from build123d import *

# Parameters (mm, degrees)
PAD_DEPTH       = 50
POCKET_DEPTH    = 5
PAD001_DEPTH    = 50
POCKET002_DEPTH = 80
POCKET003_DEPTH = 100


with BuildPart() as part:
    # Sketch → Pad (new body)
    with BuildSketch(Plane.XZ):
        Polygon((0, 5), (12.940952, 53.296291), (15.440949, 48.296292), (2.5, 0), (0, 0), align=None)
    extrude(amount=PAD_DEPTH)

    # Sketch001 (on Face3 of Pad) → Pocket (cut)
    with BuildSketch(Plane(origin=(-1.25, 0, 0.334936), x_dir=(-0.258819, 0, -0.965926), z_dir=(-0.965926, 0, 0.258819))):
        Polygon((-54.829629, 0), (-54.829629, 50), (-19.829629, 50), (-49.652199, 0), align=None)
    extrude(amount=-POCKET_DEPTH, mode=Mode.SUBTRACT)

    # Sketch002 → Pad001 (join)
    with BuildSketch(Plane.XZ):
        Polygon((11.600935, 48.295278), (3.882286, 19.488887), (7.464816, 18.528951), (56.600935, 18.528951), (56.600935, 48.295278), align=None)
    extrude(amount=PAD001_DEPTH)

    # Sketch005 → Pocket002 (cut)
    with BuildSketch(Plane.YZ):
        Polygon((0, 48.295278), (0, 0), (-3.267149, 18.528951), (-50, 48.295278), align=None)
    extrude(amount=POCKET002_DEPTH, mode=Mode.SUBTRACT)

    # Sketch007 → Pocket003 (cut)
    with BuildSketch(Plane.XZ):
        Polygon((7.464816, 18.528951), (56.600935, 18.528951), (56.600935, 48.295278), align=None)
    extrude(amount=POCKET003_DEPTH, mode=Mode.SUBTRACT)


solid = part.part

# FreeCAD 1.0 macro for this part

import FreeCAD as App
import Part
import Sketcher
from FreeCAD import Vector
Q = App.Units.Quantity


def add_polygon(sketch, points):
    """Adds a closed chain of lines whose ends are joined by coincident constraints."""
    first, n = sketch.GeometryCount, len(points)
    for a, b in zip(points, points[1:] + points[:1]):
        sketch.addGeometry(Part.LineSegment(App.Vector(*a, 0), App.Vector(*b, 0)), False)
    for i in range(n):
        sketch.addConstraint(Sketcher.Constraint("Coincident", first + i, 2, first + (i + 1) % n, 1))

doc = App.newDocument("Part")
body = doc.addObject("PartDesign::Body", "Body")

sketch1 = body.newObject("Sketcher::SketchObject", "Sketch")
sketch1.AttachmentSupport = (doc.getObject("XZ_Plane"), [""])
sketch1.MapMode = "FlatFace"
add_polygon(sketch1, [(12.9, 53.3), (0, 5), (0, 0), (2.5, 0), (15.4, 48.3)])
sketch1.addConstraint(Sketcher.Constraint("Vertical", 1))
sketch1.addConstraint(Sketcher.Constraint("Horizontal", 2))
sketch1.addConstraint(Sketcher.Constraint("Coincident", 1, 2, -1, 1))
sketch1.addConstraint(Sketcher.Constraint("Parallel", 0, 3))
sketch1.addConstraint(Sketcher.Constraint("Equal", 0, 3))
sketch1.addConstraint(Sketcher.Constraint("DistanceY", 1, 2, 1, 1, Q("5 mm")))
sketch1.addConstraint(Sketcher.Constraint("Angle", 0, Q("-105 deg")))
sketch1.addConstraint(Sketcher.Constraint("Distance", 0, Q("50 mm")))
sketch1.addConstraint(Sketcher.Constraint("DistanceX", 2, 1, 2, 2, Q("2.5 mm")))
pad1 = body.newObject("PartDesign::Pad", "Pad")
pad1.Profile = sketch1
pad1.Length = 50

sketch2 = body.newObject("Sketcher::SketchObject", "Sketch001")
sketch2.Placement = App.Placement(Vector(-1.25, 0, 0.334936), App.Rotation(Vector(-0.25881896, 0, -0.965925849), Vector(0, -1, 0), Vector(-0.965925849, 0, 0.25881896), "ZXY"))
add_polygon(sketch2, [(-55, 50), (-55, 0), (-50, 0), (-20, 50)])
sketch2.addConstraint(Sketcher.Constraint("Vertical", 0))
sketch2.addConstraint(Sketcher.Constraint("Horizontal", 1))
sketch2.addConstraint(Sketcher.Constraint("Horizontal", 3))
sketch2.addConstraint(Sketcher.Constraint("PointOnObject", 0, 2, -1))
sketch2.addConstraint(Sketcher.Constraint("DistanceX", 3, 2, 3, 1, Q("35 mm")))
sketch2.addConstraint(Sketcher.Constraint("DistanceY", 0, 2, 0, 1, Q("50 mm")))
sketch2.addConstraint(Sketcher.Constraint("DistanceX", 1, 1, 1, 2, Q("5.17743 mm")))
sketch2.addConstraint(Sketcher.Constraint("DistanceX", 1, 2, -1, 1, Q("49.652199 mm")))
pocket1 = body.newObject("PartDesign::Pocket", "Pocket")
pocket1.Profile = sketch2
pocket1.Length = 5

sketch3 = body.newObject("Sketcher::SketchObject", "Sketch002")
sketch3.AttachmentSupport = (doc.getObject("XZ_Plane"), [""])
sketch3.MapMode = "FlatFace"
add_polygon(sketch3, [(11.6, 48.3), (3.9, 19.5), (7.5, 18.5), (56.6, 18.5), (56.6, 48.3)])
sketch3.addConstraint(Sketcher.Constraint("Horizontal", 2))
sketch3.addConstraint(Sketcher.Constraint("Vertical", 3))
sketch3.addConstraint(Sketcher.Constraint("Horizontal", 4))
sketch3.addConstraint(Sketcher.Constraint("Perpendicular", 0, 1))
sketch3.addConstraint(Sketcher.Constraint("DistanceX", 4, 2, 4, 1, Q("45 mm")))
sketch3.addConstraint(Sketcher.Constraint("Angle", 0, Q("-105 deg")))
sketch3.addConstraint(Sketcher.Constraint("DistanceX", 2, 1, 2, 2, Q("49.136119 mm")))
sketch3.addConstraint(Sketcher.Constraint("Distance", 0, Q("29.82257 mm")))
sketch3.addConstraint(Sketcher.Constraint("DistanceY", -1, 1, 1, 2, Q("18.528951 mm")))
sketch3.addConstraint(Sketcher.Constraint("DistanceX", -1, 1, 0, 2, Q("3.882286 mm")))
pad2 = body.newObject("PartDesign::Pad", "Pad001")
pad2.Profile = sketch3
pad2.Length = 50

sketch4 = body.newObject("Sketcher::SketchObject", "Sketch003")
sketch4.AttachmentSupport = (doc.getObject("YZ_Plane"), [""])
sketch4.MapMode = "FlatFace"
add_polygon(sketch4, [(0, 0), (0, 48), (-50, 48), (-3, 19)])
sketch4.addConstraint(Sketcher.Constraint("Vertical", 0))
sketch4.addConstraint(Sketcher.Constraint("Horizontal", 1))
sketch4.addConstraint(Sketcher.Constraint("Coincident", 3, 2, -1, 1))
sketch4.addConstraint(Sketcher.Constraint("DistanceX", 1, 2, 1, 1, Q("50 mm")))
sketch4.addConstraint(Sketcher.Constraint("Angle", 3, Q("-80.000015 deg")))
sketch4.addConstraint(Sketcher.Constraint("DistanceY", 0, 1, 0, 2, Q("48.295278 mm")))
sketch4.addConstraint(Sketcher.Constraint("Distance", 3, Q("18.814789 mm")))
pocket2 = body.newObject("PartDesign::Pocket", "Pocket001")
pocket2.Profile = sketch4
pocket2.Length = 80
pocket2.Reversed = True

sketch5 = body.newObject("Sketcher::SketchObject", "Sketch004")
sketch5.AttachmentSupport = (doc.getObject("XZ_Plane"), [""])
sketch5.MapMode = "FlatFace"
add_polygon(sketch5, [(7, 19), (57, 19), (57, 48)])
sketch5.addConstraint(Sketcher.Constraint("Horizontal", 0))
sketch5.addConstraint(Sketcher.Constraint("Vertical", 1))
sketch5.addConstraint(Sketcher.Constraint("DistanceX", 0, 1, 0, 2, Q("49.136119 mm")))
sketch5.addConstraint(Sketcher.Constraint("Distance", 2, Q("57.449042 mm")))
sketch5.addConstraint(Sketcher.Constraint("DistanceY", -1, 1, 0, 2, Q("18.528951 mm")))
sketch5.addConstraint(Sketcher.Constraint("DistanceX", -1, 1, 0, 2, Q("56.600935 mm")))
pocket3 = body.newObject("PartDesign::Pocket", "Pocket002")
pocket3.Profile = sketch5
pocket3.Length = 100
pocket3.Reversed = True

doc.recompute()
